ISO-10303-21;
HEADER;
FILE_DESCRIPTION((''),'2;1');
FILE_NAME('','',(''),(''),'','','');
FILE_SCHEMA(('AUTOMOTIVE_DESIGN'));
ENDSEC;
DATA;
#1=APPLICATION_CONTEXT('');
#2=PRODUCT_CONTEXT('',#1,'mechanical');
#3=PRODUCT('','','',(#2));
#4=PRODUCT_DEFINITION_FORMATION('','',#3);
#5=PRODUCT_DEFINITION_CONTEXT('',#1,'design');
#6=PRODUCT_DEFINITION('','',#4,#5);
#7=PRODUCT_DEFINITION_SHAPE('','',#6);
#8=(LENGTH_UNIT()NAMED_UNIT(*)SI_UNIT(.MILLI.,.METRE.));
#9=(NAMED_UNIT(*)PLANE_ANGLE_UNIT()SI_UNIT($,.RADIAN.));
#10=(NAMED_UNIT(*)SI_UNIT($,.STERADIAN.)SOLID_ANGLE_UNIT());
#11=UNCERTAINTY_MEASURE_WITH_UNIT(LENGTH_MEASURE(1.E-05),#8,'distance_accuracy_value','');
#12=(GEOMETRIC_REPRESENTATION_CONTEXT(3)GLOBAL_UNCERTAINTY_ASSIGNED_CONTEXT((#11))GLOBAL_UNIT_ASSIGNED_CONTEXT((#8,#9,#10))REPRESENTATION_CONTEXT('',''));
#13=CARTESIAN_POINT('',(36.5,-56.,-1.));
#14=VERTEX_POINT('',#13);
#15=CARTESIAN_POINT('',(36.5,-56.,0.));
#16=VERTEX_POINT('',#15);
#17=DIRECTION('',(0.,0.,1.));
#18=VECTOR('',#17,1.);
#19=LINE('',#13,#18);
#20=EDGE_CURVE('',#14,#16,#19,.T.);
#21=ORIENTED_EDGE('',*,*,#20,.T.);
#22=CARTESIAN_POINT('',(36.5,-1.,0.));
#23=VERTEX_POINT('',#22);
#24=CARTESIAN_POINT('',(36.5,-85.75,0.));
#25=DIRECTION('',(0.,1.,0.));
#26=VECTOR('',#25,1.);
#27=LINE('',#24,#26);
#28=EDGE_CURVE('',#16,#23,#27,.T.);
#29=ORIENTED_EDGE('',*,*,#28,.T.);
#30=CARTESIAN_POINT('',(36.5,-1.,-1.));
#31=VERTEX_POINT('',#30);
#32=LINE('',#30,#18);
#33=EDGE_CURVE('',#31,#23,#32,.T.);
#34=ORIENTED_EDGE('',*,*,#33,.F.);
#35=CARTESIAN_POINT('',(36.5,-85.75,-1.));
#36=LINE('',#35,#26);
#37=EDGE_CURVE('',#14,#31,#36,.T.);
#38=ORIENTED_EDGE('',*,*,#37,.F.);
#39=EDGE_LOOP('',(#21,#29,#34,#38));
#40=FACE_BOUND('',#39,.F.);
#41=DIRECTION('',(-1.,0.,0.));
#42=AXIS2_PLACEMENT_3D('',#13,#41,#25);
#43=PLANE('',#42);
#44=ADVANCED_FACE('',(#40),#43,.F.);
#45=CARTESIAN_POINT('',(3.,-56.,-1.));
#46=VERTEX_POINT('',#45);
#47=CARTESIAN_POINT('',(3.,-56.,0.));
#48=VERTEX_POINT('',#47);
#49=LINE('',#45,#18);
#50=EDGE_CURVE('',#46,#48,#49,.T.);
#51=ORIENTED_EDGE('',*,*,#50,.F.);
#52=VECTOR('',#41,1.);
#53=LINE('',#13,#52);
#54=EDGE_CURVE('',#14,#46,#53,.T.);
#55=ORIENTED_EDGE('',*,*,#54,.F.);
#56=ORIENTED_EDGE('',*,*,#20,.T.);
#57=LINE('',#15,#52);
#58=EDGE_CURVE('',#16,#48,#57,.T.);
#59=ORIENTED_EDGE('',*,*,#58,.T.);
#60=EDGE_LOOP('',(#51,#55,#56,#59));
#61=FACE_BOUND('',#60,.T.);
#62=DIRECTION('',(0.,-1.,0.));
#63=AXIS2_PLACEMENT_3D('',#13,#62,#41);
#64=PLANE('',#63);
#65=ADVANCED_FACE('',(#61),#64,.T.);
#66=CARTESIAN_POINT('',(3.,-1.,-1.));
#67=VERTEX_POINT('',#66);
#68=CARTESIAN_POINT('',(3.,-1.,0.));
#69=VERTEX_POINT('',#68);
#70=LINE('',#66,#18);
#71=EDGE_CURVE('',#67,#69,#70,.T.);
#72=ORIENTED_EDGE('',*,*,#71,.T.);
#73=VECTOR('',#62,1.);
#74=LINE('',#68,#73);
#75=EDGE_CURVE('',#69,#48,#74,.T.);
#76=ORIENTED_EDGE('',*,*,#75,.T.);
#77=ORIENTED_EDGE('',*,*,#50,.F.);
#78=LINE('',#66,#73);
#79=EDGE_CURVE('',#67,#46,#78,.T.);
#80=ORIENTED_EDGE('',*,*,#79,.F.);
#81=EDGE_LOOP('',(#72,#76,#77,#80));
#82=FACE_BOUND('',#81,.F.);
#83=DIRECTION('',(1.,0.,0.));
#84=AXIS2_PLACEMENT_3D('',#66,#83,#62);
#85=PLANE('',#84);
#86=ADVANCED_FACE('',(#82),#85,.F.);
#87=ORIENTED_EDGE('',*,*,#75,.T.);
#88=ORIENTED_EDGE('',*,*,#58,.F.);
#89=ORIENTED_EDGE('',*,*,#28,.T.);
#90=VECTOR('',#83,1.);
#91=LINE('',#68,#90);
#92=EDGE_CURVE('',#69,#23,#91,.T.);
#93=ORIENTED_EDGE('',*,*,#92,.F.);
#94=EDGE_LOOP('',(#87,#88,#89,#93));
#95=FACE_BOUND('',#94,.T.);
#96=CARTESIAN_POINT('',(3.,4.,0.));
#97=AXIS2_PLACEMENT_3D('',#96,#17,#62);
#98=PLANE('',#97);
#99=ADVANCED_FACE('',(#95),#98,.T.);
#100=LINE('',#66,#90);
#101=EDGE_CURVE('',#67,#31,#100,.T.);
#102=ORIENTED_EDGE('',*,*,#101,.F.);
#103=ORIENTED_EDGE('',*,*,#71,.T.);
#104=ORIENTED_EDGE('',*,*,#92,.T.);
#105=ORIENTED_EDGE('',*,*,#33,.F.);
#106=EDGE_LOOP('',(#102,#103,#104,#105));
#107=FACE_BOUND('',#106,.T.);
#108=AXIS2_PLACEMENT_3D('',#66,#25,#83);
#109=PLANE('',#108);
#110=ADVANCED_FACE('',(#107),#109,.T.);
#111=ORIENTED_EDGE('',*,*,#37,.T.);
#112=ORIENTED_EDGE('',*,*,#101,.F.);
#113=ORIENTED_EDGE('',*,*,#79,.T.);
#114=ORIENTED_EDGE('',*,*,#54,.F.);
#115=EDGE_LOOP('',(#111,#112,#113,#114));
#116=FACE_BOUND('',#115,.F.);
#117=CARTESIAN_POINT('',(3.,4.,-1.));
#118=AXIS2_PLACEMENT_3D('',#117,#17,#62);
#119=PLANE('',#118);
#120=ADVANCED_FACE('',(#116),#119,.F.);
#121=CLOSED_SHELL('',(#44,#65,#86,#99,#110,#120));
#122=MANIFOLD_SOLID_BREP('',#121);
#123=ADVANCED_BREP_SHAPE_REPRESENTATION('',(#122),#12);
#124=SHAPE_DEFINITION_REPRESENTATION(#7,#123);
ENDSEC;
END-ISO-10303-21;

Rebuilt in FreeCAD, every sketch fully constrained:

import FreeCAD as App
import Part
import Sketcher
from FreeCAD import Vector

doc = App.newDocument("Part")
body = doc.addObject("PartDesign::Body", "Body")

# Sketch on XY plane
sketch1 = body.newObject("Sketcher::SketchObject", "Sketch")
sketch1.AttachmentSupport = (doc.getObject("XY_Plane"), [""])
sketch1.MapMode = "FlatFace"
sketch1.AttachmentOffset = App.Placement(Vector(0, 0, -1), App.Rotation())
sketch1.addGeometry(Part.LineSegment(Vector(3, -56, 0), Vector(36, -56, 0)), False)
sketch1.addGeometry(Part.LineSegment(Vector(36, -56, 0), Vector(36, -1, 0)), False)
sketch1.addGeometry(Part.LineSegment(Vector(36, -1, 0), Vector(3, -1, 0)), False)
sketch1.addGeometry(Part.LineSegment(Vector(3, -1, 0), Vector(3, -56, 0)), False)
sketch1.addConstraint(Sketcher.Constraint("Coincident", 0, 2, 1, 1))
sketch1.addConstraint(Sketcher.Constraint("Coincident", 1, 2, 2, 1))
sketch1.addConstraint(Sketcher.Constraint("Coincident", 2, 2, 3, 1))
sketch1.addConstraint(Sketcher.Constraint("Coincident", 3, 2, 0, 1))
sketch1.addConstraint(Sketcher.Constraint("Horizontal", 0))
sketch1.addConstraint(Sketcher.Constraint("Vertical", 1))
sketch1.addConstraint(Sketcher.Constraint("Horizontal", 2))
sketch1.addConstraint(Sketcher.Constraint("Vertical", 3))
sketch1.addConstraint(Sketcher.Constraint("DistanceY", 1, 1, 1, 2, 55.0))
sketch1.addConstraint(Sketcher.Constraint("DistanceX", 0, 1, 0, 2, 33.5))
sketch1.addConstraint(Sketcher.Constraint("DistanceY", 0, 2, -1, 1, 56.0))
sketch1.addConstraint(Sketcher.Constraint("DistanceX", -1, 1, 2, 2, 3.0))
pad1 = body.newObject("PartDesign::Pad", "Pad")
pad1.Profile = sketch1
pad1.Length = 1

doc.recompute()
